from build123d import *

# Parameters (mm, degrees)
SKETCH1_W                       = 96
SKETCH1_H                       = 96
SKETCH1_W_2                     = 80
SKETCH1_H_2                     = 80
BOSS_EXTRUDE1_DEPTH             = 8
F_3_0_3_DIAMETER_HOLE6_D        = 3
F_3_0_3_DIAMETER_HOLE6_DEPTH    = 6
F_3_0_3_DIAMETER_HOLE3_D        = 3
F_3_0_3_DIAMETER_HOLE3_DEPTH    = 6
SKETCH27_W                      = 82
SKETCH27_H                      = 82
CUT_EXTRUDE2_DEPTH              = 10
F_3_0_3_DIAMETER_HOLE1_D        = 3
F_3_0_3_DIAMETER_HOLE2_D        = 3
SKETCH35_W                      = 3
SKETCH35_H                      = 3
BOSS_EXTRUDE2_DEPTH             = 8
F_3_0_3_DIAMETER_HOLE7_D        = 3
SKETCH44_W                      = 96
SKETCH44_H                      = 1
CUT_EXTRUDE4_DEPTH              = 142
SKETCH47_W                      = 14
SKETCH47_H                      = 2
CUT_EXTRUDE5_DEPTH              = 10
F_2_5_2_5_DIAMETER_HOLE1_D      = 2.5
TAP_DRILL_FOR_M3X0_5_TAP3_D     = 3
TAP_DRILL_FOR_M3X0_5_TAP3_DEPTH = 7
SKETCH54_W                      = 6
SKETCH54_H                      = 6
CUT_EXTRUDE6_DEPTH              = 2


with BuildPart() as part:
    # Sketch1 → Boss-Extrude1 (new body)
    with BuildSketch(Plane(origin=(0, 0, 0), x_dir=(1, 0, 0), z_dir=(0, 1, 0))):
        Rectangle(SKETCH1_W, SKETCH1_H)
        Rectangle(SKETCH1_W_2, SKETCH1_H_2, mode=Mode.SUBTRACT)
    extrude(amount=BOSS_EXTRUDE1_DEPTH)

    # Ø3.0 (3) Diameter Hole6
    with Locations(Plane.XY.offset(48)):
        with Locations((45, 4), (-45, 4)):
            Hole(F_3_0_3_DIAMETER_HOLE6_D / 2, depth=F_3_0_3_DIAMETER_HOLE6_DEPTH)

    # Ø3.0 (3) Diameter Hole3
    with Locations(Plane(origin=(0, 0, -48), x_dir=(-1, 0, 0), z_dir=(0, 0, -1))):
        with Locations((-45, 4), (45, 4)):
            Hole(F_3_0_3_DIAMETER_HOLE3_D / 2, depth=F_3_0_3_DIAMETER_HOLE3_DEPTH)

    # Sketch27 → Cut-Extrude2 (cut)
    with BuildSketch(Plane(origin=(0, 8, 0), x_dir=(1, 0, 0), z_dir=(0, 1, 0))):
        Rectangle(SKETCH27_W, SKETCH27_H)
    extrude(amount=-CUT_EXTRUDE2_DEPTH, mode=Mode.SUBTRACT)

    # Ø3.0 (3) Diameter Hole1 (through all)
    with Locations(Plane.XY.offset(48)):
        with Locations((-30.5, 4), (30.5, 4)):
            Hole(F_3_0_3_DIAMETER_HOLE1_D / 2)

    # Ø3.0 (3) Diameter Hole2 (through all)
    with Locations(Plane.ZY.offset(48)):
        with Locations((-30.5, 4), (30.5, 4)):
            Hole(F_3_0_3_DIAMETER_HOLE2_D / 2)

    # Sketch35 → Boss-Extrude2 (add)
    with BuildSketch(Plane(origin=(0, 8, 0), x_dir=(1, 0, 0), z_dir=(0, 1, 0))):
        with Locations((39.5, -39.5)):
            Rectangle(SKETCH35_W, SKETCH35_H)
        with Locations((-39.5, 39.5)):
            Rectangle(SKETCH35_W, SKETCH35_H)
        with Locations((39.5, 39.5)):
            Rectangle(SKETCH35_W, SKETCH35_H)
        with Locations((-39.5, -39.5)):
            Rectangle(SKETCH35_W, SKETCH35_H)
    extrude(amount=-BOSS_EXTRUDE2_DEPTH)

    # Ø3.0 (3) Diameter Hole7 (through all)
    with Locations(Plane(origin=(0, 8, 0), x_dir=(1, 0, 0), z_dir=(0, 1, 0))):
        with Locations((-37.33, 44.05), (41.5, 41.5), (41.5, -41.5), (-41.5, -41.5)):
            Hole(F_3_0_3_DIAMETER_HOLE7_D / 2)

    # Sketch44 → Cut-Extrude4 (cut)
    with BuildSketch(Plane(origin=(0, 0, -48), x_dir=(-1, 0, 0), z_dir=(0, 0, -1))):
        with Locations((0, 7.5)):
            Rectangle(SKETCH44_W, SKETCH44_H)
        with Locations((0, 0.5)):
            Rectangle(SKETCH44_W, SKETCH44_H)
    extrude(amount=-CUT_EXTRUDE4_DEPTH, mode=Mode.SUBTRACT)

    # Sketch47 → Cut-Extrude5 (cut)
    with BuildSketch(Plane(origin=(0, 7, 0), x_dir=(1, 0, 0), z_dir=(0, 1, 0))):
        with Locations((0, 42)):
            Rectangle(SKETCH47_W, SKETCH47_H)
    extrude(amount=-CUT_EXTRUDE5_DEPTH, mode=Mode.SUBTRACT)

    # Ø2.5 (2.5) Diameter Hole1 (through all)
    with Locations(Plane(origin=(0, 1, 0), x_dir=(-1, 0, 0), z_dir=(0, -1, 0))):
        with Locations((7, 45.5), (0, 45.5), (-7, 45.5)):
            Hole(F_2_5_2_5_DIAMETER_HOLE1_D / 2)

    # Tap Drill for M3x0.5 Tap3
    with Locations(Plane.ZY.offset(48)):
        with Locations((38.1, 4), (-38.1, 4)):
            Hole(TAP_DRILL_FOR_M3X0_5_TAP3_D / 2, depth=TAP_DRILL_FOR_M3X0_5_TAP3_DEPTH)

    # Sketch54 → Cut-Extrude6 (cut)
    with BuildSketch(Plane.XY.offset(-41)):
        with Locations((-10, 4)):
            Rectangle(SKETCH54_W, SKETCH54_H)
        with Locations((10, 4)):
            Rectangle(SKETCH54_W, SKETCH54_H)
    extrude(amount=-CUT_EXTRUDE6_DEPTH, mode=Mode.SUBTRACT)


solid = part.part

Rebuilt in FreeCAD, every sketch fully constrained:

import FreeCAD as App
import Part
import Sketcher

V = App.Vector
Q = App.Units.Quantity


def add_polygon(sketch, points):
    """Adds a closed chain of lines whose ends are joined by coincident constraints."""
    first, n = sketch.GeometryCount, len(points)
    for a, b in zip(points, points[1:] + points[:1]):
        sketch.addGeometry(Part.LineSegment(App.Vector(*a, 0), App.Vector(*b, 0)), False)
    for i in range(n):
        sketch.addConstraint(Sketcher.Constraint("Coincident", first + i, 2, first + (i + 1) % n, 1))

doc = App.newDocument("Part")
body = doc.addObject("PartDesign::Body", "Body")

# Sketch on XZ plane
sketch1 = body.newObject("Sketcher::SketchObject", "Sketch")
sketch1.AttachmentSupport = (doc.getObject("XZ_Plane"), [""])
sketch1.MapMode = "FlatFace"
add_polygon(sketch1, [(-48, -48), (-48, 48), (48, 48), (48, -48)])  # lines 0-3
add_polygon(sketch1, [(40, 40), (-40, 40), (-40, -40), (40, -40)])  # lines 4-7
sketch1.addConstraint([
    Sketcher.Constraint("Vertical", 0),
    Sketcher.Constraint("Horizontal", 1),
    Sketcher.Constraint("Vertical", 2),
    Sketcher.Constraint("Horizontal", 3),
    Sketcher.Constraint("Horizontal", 4),
    Sketcher.Constraint("Vertical", 5),
    Sketcher.Constraint("Horizontal", 6),
    Sketcher.Constraint("Vertical", 7),
    Sketcher.Constraint("Symmetric", 0, 2, 2, 2, -1, 1),
    Sketcher.Constraint("Symmetric", 4, 2, 6, 2, -1, 1),
    Sketcher.Constraint("Equal", 3, 0),
    Sketcher.Constraint("Equal", 6, 5),
    Sketcher.Constraint("DistanceX", 1, 1, 1, 2, Q("96 mm")),
    Sketcher.Constraint("DistanceX", 4, 2, 4, 1, Q("80 mm")),
])
pad1 = body.newObject("PartDesign::Pad", "Pad")
pad1.Profile = sketch1
pad1.Length = 8
pad1.Reversed = True

# Sketch on XY plane
sketch2 = body.newObject("Sketcher::SketchObject", "Sketch001")
sketch2.AttachmentSupport = (doc.getObject("XY_Plane"), [""])
sketch2.MapMode = "FlatFace"
sketch2.AttachmentOffset = App.Placement(V(0, 0, 48), App.Rotation())
sketch2.addGeometry([
    Part.Circle(V(45, 4, 0), V(0, 0, 1), 1.5),
    Part.Circle(V(-45, 4, 0), V(0, 0, 1), 1.5),
], False)
sketch2.addConstraint([
    Sketcher.Constraint("Equal", 0, 1),
    Sketcher.Constraint("Symmetric", 0, 3, 1, 3, -2),
    Sketcher.Constraint("Diameter", 0, Q("3 mm")),
    Sketcher.Constraint("DistanceX", -1, 1, 0, 3, Q("45 mm")),
    Sketcher.Constraint("DistanceY", -1, 1, 0, 3, Q("4 mm")),
])
doc.recompute()
hole = body.newObject("PartDesign::Hole", "Hole")
hole.Profile = sketch2
hole.ThreadType = "None"
hole.Diameter = 3
hole.DepthType = "Dimension"
hole.Depth = 6
hole.DrillPoint = "Flat"

# Sketch on XY plane
sketch3 = body.newObject("Sketcher::SketchObject", "Sketch002")
sketch3.AttachmentSupport = (doc.getObject("XY_Plane"), [""])
sketch3.MapMode = "FlatFace"
sketch3.AttachmentOffset = App.Placement(V(0, 0, -48), App.Rotation())
sketch3.addGeometry([
    Part.Circle(V(45, 4, 0), V(0, 0, 1), 1.5),
    Part.Circle(V(-45, 4, 0), V(0, 0, 1), 1.5),
], False)
sketch3.addConstraint([
    Sketcher.Constraint("Equal", 0, 1),
    Sketcher.Constraint("Symmetric", 0, 3, 1, 3, -2),
    Sketcher.Constraint("Diameter", 0, Q("3 mm")),
    Sketcher.Constraint("DistanceX", -1, 1, 0, 3, Q("45 mm")),
    Sketcher.Constraint("DistanceY", -1, 1, 0, 3, Q("4 mm")),
])
doc.recompute()
hole2 = body.newObject("PartDesign::Hole", "Hole001")
hole2.Profile = sketch3
hole2.ThreadType = "None"
hole2.Diameter = 3
hole2.DepthType = "Dimension"
hole2.Depth = 6
hole2.DrillPoint = "Flat"
hole2.Reversed = True

# Sketch on XZ plane
sketch4 = body.newObject("Sketcher::SketchObject", "Sketch003")
sketch4.AttachmentSupport = (doc.getObject("XZ_Plane"), [""])
sketch4.MapMode = "FlatFace"
sketch4.AttachmentOffset = App.Placement(V(0, 0, -8), App.Rotation())
add_polygon(sketch4, [(-41, -41), (-41, 41), (41, 41), (41, -41)])  # lines 0-3
sketch4.addConstraint([
    Sketcher.Constraint("Vertical", 0),
    Sketcher.Constraint("Horizontal", 1),
    Sketcher.Constraint("Vertical", 2),
    Sketcher.Constraint("Horizontal", 3),
    Sketcher.Constraint("Symmetric", 0, 2, 2, 2, -1, 1),
    Sketcher.Constraint("Equal", 3, 0),
    Sketcher.Constraint("DistanceX", 1, 1, 1, 2, Q("82 mm")),
])
pocket1 = body.newObject("PartDesign::Pocket", "Pocket")
pocket1.Profile = sketch4
pocket1.Length = 10
pocket1.Reversed = True

# Sketch on XY plane
sketch5 = body.newObject("Sketcher::SketchObject", "Sketch004")
sketch5.AttachmentSupport = (doc.getObject("XY_Plane"), [""])
sketch5.MapMode = "FlatFace"
sketch5.AttachmentOffset = App.Placement(V(0, 0, 48), App.Rotation())
sketch5.addGeometry([
    Part.Circle(V(-30.5, 4, 0), V(0, 0, 1), 1.5),
    Part.Circle(V(30.5, 4, 0), V(0, 0, 1), 1.5),
], False)
sketch5.addConstraint([
    Sketcher.Constraint("Equal", 0, 1),
    Sketcher.Constraint("Symmetric", 0, 3, 1, 3, -2),
    Sketcher.Constraint("Diameter", 0, Q("3 mm")),
    Sketcher.Constraint("DistanceY", -1, 1, 0, 3, Q("4 mm")),
    Sketcher.Constraint("DistanceX", 0, 3, 1, 3, Q("61 mm")),
])
doc.recompute()
hole3 = body.newObject("PartDesign::Hole", "Hole002")
hole3.Profile = sketch5
hole3.ThreadType = "None"
hole3.Diameter = 3
hole3.DepthType = "ThroughAll"

# Sketch on YZ plane
sketch6 = body.newObject("Sketcher::SketchObject", "Sketch005")
sketch6.AttachmentSupport = (doc.getObject("YZ_Plane"), [""])
sketch6.MapMode = "FlatFace"
sketch6.AttachmentOffset = App.Placement(V(0, 0, -48), App.Rotation())
sketch6.addGeometry([
    Part.Circle(V(4, -30.5, 0), V(0, 0, 1), 1.5),
    Part.Circle(V(4, 30.5, 0), V(0, 0, 1), 1.5),
], False)
sketch6.addConstraint([
    Sketcher.Constraint("Equal", 0, 1),
    Sketcher.Constraint("Symmetric", 0, 3, 1, 3, -1),
    Sketcher.Constraint("Diameter", 0, Q("3 mm")),
    Sketcher.Constraint("DistanceX", -1, 1, 0, 3, Q("4 mm")),
    Sketcher.Constraint("DistanceY", 0, 3, 1, 3, Q("61 mm")),
])
doc.recompute()
hole4 = body.newObject("PartDesign::Hole", "Hole003")
hole4.Profile = sketch6
hole4.ThreadType = "None"
hole4.Diameter = 3
hole4.DepthType = "ThroughAll"
hole4.Reversed = True

# Sketch on XZ plane
sketch7 = body.newObject("Sketcher::SketchObject", "Sketch006")
sketch7.AttachmentSupport = (doc.getObject("XZ_Plane"), [""])
sketch7.MapMode = "FlatFace"
sketch7.AttachmentOffset = App.Placement(V(0, 0, -8), App.Rotation())
add_polygon(sketch7, [(38, 38), (38, 41), (41, 41), (41, 38)])  # lines 0-3
add_polygon(sketch7, [(-41, -41), (-41, -38), (-38, -38), (-38, -41)])  # lines 4-7
add_polygon(sketch7, [(38, -41), (38, -38), (41, -38), (41, -41)])  # lines 8-11
add_polygon(sketch7, [(-41, 38), (-41, 41), (-38, 41), (-38, 38)])  # lines 12-15
sketch7.addConstraint([
    Sketcher.Constraint("Vertical", 0),
    Sketcher.Constraint("Horizontal", 1),
    Sketcher.Constraint("Vertical", 2),
    Sketcher.Constraint("Horizontal", 3),
    Sketcher.Constraint("Vertical", 4),
    Sketcher.Constraint("Horizontal", 5),
    Sketcher.Constraint("Vertical", 6),
    Sketcher.Constraint("Horizontal", 7),
    Sketcher.Constraint("Vertical", 8),
    Sketcher.Constraint("Horizontal", 9),
    Sketcher.Constraint("Vertical", 10),
    Sketcher.Constraint("Horizontal", 11),
    Sketcher.Constraint("Vertical", 12),
    Sketcher.Constraint("Horizontal", 13),
    Sketcher.Constraint("Vertical", 14),
    Sketcher.Constraint("Horizontal", 15),
    Sketcher.Constraint("Symmetric", 2, 2, 4, 2, -1, 1),
    Sketcher.Constraint("Symmetric", 0, 2, 6, 2, -1, 1),
    Sketcher.Constraint("Symmetric", 10, 2, 12, 2, -1, 1),
    Sketcher.Constraint("Symmetric", 8, 2, 14, 2, -1, 1),
    Sketcher.Constraint("Symmetric", 5, 2, 8, 2, -2),
    Sketcher.Constraint("Symmetric", 7, 2, 10, 2, -2),
    Sketcher.Constraint("Equal", 15, 0),
    Sketcher.Constraint("DistanceX", 1, 1, 1, 2, Q("3 mm")),
    Sketcher.Constraint("DistanceX", -1, 1, 0, 2, Q("38 mm")),
    Sketcher.Constraint("DistanceY", -1, 1, 0, 2, Q("41 mm")),
])
pad2 = body.newObject("PartDesign::Pad", "Pad001")
pad2.Profile = sketch7
pad2.Length = 8

# Sketch on XZ plane
sketch8 = body.newObject("Sketcher::SketchObject", "Sketch007")
sketch8.AttachmentSupport = (doc.getObject("XZ_Plane"), [""])
sketch8.MapMode = "FlatFace"
sketch8.AttachmentOffset = App.Placement(V(0, 0, -8), App.Rotation())
sketch8.addGeometry([
    Part.Circle(V(-37.33, -44.05, 0), V(0, 0, 1), 1.5),
    Part.Circle(V(41.5, -41.5, 0), V(0, 0, 1), 1.5),
    Part.Circle(V(41.5, 41.5, 0), V(0, 0, 1), 1.5),
    Part.Circle(V(-41.5, 41.5, 0), V(0, 0, 1), 1.5),
], False)
sketch8.addConstraint([
    Sketcher.Constraint("Equal", 0, 1),
    Sketcher.Constraint("Equal", 1, 2),
    Sketcher.Constraint("Equal", 2, 3),
    Sketcher.Constraint("Symmetric", 1, 3, 3, 3, -1, 1),
    Sketcher.Constraint("Symmetric", 2, 3, 3, 3, -2),
    Sketcher.Constraint("Diameter", 0, Q("3 mm")),
    Sketcher.Constraint("DistanceY", 1, 3, 2, 3, Q("83 mm")),
    Sketcher.Constraint("DistanceX", 3, 3, 2, 3, Q("83 mm")),
    Sketcher.Constraint("DistanceX", 0, 3, -1, 1, Q("37.33 mm")),
    Sketcher.Constraint("DistanceY", 0, 3, -1, 1, Q("44.05 mm")),
])
doc.recompute()
hole5 = body.newObject("PartDesign::Hole", "Hole004")
hole5.Profile = sketch8
hole5.ThreadType = "None"
hole5.Diameter = 3
hole5.DepthType = "ThroughAll"
hole5.Reversed = True

# Sketch on XY plane
sketch9 = body.newObject("Sketcher::SketchObject", "Sketch008")
sketch9.AttachmentSupport = (doc.getObject("XY_Plane"), [""])
sketch9.MapMode = "FlatFace"
sketch9.AttachmentOffset = App.Placement(V(0, 0, -48), App.Rotation())
add_polygon(sketch9, [(48, 8), (48, 7), (-48, 7), (-48, 8)])  # lines 0-3
add_polygon(sketch9, [(48, 1), (48, 0), (-48, 0), (-48, 1)])  # lines 4-7
sketch9.addConstraint([
    Sketcher.Constraint("Vertical", 0),
    Sketcher.Constraint("Horizontal", 1),
    Sketcher.Constraint("Vertical", 2),
    Sketcher.Constraint("Horizontal", 3),
    Sketcher.Constraint("Vertical", 4),
    Sketcher.Constraint("Horizontal", 5),
    Sketcher.Constraint("Vertical", 6),
    Sketcher.Constraint("Horizontal", 7),
    Sketcher.Constraint("Symmetric", 4, 2, 5, 2, -1, 1),
    Sketcher.Constraint("Vertical", 3, 2, 4, 2),
    Sketcher.Constraint("Vertical", 2, 2, 5, 2),
    Sketcher.Constraint("Equal", 2, 4),
    Sketcher.Constraint("DistanceX", 1, 2, 1, 1, Q("96 mm")),
    Sketcher.Constraint("DistanceY", 0, 2, 0, 1, Q("1 mm")),
    Sketcher.Constraint("DistanceY", -1, 1, 0, 2, Q("7 mm")),
])
pocket2 = body.newObject("PartDesign::Pocket", "Pocket001")
pocket2.Profile = sketch9
pocket2.Length = 142
pocket2.Reversed = True

# Sketch on XZ plane
sketch10 = body.newObject("Sketcher::SketchObject", "Sketch009")
sketch10.AttachmentSupport = (doc.getObject("XZ_Plane"), [""])
sketch10.MapMode = "FlatFace"
sketch10.AttachmentOffset = App.Placement(V(0, 0, -7), App.Rotation())
add_polygon(sketch10, [(-7, -43), (-7, -41), (7, -41), (7, -43)])  # lines 0-3
sketch10.addConstraint([
    Sketcher.Constraint("Vertical", 0),
    Sketcher.Constraint("Horizontal", 1),
    Sketcher.Constraint("Vertical", 2),
    Sketcher.Constraint("Horizontal", 3),
    Sketcher.Constraint("DistanceX", 1, 1, 1, 2, Q("14 mm")),
    Sketcher.Constraint("DistanceY", 0, 1, 0, 2, Q("2 mm")),
    Sketcher.Constraint("DistanceX", 0, 2, -1, 1, Q("7 mm")),
    Sketcher.Constraint("DistanceY", 0, 2, -1, 1, Q("41 mm")),
])
pocket3 = body.newObject("PartDesign::Pocket", "Pocket002")
pocket3.Profile = sketch10
pocket3.Length = 10
pocket3.Reversed = True

# Sketch on XZ plane
sketch11 = body.newObject("Sketcher::SketchObject", "Sketch010")
sketch11.AttachmentSupport = (doc.getObject("XZ_Plane"), [""])
sketch11.MapMode = "FlatFace"
sketch11.AttachmentOffset = App.Placement(V(0, 0, -1), App.Rotation())
sketch11.addGeometry([
    Part.Circle(V(-7, -45.5, 0), V(0, 0, 1), 1.25),
    Part.Circle(V(0, -45.5, 0), V(0, 0, 1), 1.25),
    Part.Circle(V(7, -45.5, 0), V(0, 0, 1), 1.25),
], False)
sketch11.addConstraint([
    Sketcher.Constraint("Equal", 0, 1),
    Sketcher.Constraint("Equal", 1, 2),
    Sketcher.Constraint("Symmetric", 0, 3, 2, 3, -2),
    Sketcher.Constraint("PointOnObject", 1, 3, -2),
    Sketcher.Constraint("Horizontal", 0, 3, 1, 3),
    Sketcher.Constraint("Diameter", 0, Q("2.5 mm")),
    Sketcher.Constraint("DistanceX", 0, 3, -1, 1, Q("7 mm")),
    Sketcher.Constraint("DistanceY", 0, 3, -1, 1, Q("45.5 mm")),
])
doc.recompute()
hole6 = body.newObject("PartDesign::Hole", "Hole005")
hole6.Profile = sketch11
hole6.ThreadType = "None"
hole6.Diameter = 2.5
hole6.DepthType = "ThroughAll"

# Sketch on YZ plane
sketch12 = body.newObject("Sketcher::SketchObject", "Sketch011")
sketch12.AttachmentSupport = (doc.getObject("YZ_Plane"), [""])
sketch12.MapMode = "FlatFace"
sketch12.AttachmentOffset = App.Placement(V(0, 0, -48), App.Rotation())
sketch12.addGeometry([
    Part.Circle(V(4, 38.1, 0), V(0, 0, 1), 1.5),
    Part.Circle(V(4, -38.1, 0), V(0, 0, 1), 1.5),
], False)
sketch12.addConstraint([
    Sketcher.Constraint("Equal", 0, 1),
    Sketcher.Constraint("Symmetric", 0, 3, 1, 3, -1),
    Sketcher.Constraint("Diameter", 0, Q("3 mm")),
    Sketcher.Constraint("DistanceX", -1, 1, 0, 3, Q("4 mm")),
    Sketcher.Constraint("DistanceY", -1, 1, 0, 3, Q("38.1 mm")),
])
doc.recompute()
hole7 = body.newObject("PartDesign::Hole", "Hole006")
hole7.Profile = sketch12
hole7.ThreadType = "None"
hole7.Diameter = 3
hole7.DepthType = "Dimension"
hole7.Depth = 7
hole7.DrillPoint = "Flat"
hole7.Reversed = True

# Sketch on XY plane
sketch13 = body.newObject("Sketcher::SketchObject", "Sketch012")
sketch13.AttachmentSupport = (doc.getObject("XY_Plane"), [""])
sketch13.MapMode = "FlatFace"
sketch13.AttachmentOffset = App.Placement(V(0, 0, -41), App.Rotation())
add_polygon(sketch13, [(-13, 7), (-13, 1), (-7, 1), (-7, 7)])  # lines 0-3
add_polygon(sketch13, [(7, 7), (7, 1), (13, 1), (13, 7)])  # lines 4-7
sketch13.addConstraint([
    Sketcher.Constraint("Vertical", 0),
    Sketcher.Constraint("Horizontal", 1),
    Sketcher.Constraint("Vertical", 2),
    Sketcher.Constraint("Horizontal", 3),
    Sketcher.Constraint("Vertical", 4),
    Sketcher.Constraint("Horizontal", 5),
    Sketcher.Constraint("Vertical", 6),
    Sketcher.Constraint("Horizontal", 7),
    Sketcher.Constraint("Symmetric", 1, 2, 4, 2, -2),
    Sketcher.Constraint("Symmetric", 3, 2, 6, 2, -2),
    Sketcher.Constraint("Equal", 7, 0),
    Sketcher.Constraint("DistanceX", 1, 1, 1, 2, Q("6 mm")),
    Sketcher.Constraint("DistanceX", 0, 2, -1, 1, Q("13 mm")),
    Sketcher.Constraint("DistanceY", -1, 1, 0, 2, Q("1 mm")),
])
pocket4 = body.newObject("PartDesign::Pocket", "Pocket003")
pocket4.Profile = sketch13
pocket4.Length = 2

doc.recompute()
